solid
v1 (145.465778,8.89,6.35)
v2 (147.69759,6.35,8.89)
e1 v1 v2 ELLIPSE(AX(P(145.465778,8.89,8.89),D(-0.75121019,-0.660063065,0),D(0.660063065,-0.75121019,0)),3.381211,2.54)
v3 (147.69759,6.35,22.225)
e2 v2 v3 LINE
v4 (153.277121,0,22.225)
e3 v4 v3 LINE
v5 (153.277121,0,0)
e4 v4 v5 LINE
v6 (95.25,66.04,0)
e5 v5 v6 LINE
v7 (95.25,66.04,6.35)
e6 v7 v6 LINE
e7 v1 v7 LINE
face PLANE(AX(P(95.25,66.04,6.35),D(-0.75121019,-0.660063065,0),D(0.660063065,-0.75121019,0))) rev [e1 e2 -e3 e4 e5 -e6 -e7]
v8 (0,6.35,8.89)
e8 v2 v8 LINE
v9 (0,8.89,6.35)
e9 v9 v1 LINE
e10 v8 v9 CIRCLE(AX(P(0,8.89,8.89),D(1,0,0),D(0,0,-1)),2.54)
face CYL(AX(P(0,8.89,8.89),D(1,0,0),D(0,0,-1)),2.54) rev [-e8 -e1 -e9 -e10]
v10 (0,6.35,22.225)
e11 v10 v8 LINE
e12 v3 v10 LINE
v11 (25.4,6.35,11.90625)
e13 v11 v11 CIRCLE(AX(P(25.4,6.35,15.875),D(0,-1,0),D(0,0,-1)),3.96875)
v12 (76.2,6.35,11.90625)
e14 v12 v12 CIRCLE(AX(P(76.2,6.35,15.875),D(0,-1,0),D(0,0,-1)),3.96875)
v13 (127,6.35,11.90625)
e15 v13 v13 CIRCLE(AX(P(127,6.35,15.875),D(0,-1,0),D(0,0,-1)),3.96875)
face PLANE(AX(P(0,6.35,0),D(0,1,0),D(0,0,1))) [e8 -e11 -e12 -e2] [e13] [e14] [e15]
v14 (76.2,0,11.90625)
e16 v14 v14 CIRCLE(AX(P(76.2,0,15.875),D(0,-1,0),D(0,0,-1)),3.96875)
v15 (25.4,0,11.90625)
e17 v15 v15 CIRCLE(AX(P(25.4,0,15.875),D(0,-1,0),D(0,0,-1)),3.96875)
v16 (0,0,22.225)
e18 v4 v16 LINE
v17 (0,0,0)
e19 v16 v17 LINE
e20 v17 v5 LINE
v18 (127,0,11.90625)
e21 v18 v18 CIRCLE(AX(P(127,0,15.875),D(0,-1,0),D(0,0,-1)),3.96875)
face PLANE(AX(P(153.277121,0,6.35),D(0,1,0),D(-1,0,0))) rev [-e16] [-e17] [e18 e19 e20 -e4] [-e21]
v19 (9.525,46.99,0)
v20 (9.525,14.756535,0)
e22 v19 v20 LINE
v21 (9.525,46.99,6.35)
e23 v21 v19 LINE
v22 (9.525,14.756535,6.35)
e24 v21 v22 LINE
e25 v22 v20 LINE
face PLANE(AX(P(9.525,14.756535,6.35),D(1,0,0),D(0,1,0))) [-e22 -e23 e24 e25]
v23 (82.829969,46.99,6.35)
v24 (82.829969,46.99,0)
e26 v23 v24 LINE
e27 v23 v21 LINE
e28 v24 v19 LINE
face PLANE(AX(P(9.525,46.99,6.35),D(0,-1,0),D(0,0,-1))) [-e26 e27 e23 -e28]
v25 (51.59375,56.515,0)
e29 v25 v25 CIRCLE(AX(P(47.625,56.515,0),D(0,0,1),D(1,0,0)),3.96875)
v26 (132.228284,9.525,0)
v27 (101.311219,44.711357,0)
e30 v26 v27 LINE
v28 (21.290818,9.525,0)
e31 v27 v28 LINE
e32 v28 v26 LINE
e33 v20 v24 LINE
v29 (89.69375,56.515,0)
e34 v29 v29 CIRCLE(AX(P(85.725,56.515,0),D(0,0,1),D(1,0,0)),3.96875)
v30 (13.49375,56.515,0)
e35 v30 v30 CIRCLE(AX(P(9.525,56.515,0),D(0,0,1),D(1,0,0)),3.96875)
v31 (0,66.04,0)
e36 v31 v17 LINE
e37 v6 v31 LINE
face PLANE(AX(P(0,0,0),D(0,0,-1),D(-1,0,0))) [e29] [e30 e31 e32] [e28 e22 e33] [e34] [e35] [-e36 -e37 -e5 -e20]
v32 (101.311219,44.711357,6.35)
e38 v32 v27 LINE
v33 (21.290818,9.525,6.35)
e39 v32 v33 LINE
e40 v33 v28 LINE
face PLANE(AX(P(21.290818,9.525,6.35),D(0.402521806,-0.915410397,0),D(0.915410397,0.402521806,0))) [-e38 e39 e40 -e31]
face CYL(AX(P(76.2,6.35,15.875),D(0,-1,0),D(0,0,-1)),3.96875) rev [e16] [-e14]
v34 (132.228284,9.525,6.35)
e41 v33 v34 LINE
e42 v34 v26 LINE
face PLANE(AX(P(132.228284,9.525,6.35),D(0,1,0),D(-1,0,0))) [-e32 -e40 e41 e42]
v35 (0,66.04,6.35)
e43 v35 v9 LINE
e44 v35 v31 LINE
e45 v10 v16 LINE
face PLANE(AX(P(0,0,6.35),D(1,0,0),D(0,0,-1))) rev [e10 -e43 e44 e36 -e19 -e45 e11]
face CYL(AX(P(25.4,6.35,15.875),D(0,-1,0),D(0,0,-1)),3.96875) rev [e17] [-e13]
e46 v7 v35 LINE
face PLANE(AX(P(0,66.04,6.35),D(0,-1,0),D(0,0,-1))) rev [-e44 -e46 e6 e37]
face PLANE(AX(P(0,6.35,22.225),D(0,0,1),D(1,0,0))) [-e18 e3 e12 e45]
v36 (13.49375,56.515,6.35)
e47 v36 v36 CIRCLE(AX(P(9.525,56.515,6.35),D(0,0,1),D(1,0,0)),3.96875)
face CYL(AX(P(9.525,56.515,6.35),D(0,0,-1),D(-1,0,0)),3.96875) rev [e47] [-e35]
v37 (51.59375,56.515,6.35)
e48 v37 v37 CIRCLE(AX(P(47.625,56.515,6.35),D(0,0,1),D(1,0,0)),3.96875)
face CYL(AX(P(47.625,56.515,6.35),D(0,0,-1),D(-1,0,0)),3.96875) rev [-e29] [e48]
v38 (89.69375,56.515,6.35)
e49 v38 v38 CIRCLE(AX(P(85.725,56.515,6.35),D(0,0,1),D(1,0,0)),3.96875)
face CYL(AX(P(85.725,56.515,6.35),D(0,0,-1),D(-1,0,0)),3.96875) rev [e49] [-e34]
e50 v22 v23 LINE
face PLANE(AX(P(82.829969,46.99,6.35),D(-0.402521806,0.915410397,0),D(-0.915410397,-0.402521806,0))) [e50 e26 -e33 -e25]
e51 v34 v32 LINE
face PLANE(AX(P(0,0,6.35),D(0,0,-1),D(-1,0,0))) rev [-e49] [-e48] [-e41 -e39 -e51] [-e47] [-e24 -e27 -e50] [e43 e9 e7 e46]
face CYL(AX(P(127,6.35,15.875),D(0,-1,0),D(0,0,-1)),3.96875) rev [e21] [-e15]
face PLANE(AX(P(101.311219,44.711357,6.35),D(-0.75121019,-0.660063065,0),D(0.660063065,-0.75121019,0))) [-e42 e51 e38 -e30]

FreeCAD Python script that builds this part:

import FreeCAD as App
import Part
import Sketcher

V = App.Vector
Q = App.Units.Quantity


def edges_at(feature, points):
    """Names of the edges that pass closest to the given points."""
    edges = feature.Shape.Edges
    near = lambda p: min(range(len(edges)), key=lambda i: edges[i].distToShape(Part.Vertex(*p))[0])
    return sorted({f"Edge{near(p) + 1}" for p in points})

doc = App.newDocument("Part")
params = doc.addObject("Spreadsheet::Sheet", "Params")
for row, (alias, value) in enumerate([
    ("sketch1_diameter", "0.3125 in"),
    ("sketch1_height", "2.6 in"),
    ("sketch1_width", "3.75 in"),
    ("pad1_length", "0.25 in"),
    ("sketch2_diameter", "0.3125 in"),
    ("sketch2_height", "0.625 in"),
    ("pad2_length", "0.25 in"),
    ("fillet_radius", "0.1 in"),
], start=1):
    params.set(f"A{row}", alias)
    params.set(f"B{row}", "=" + value)
    params.setAlias(f"B{row}", alias)

body = doc.addObject("PartDesign::Body", "Body")

sketch1 = body.newObject("Sketcher::SketchObject", "Sketch")
sketch1.AttachmentSupport = (doc.getObject("XY_Plane"), [""])
sketch1.MapMode = "FlatFace"
sketch1.addGeometry([
    Part.LineSegment(V(0, 66, 0), V(0, 0, 0)),
    Part.LineSegment(V(0, 0, 0), V(153.3, 0, 0)),
    Part.LineSegment(V(153.3, 0, 0), V(95.2, 66, 0)),
    Part.LineSegment(V(95.2, 66, 0), V(0, 66, 0)),
    Part.LineSegment(V(21.3, 9.5, 0), V(101.3, 44.7, 0)),
    Part.LineSegment(V(101.3, 44.7, 0), V(132.2, 9.5, 0)),
    Part.LineSegment(V(132.2, 9.5, 0), V(21.3, 9.5, 0)),
    Part.LineSegment(V(9.5, 14.8, 0), V(9.5, 47, 0)),
    Part.LineSegment(V(9.5, 47, 0), V(82.8, 47, 0)),
    Part.LineSegment(V(82.8, 47, 0), V(9.5, 14.8, 0)),
    Part.Circle(V(85.7, 56.5, 0), V(0, 0, 1), 4),
    Part.Circle(V(47.6, 56.5, 0), V(0, 0, 1), 4),
    Part.Circle(V(9.5, 56.5, 0), V(0, 0, 1), 4),
], False)
sketch1.addConstraint([
    Sketcher.Constraint("Coincident", 0, 2, 1, 1),
    Sketcher.Constraint("Coincident", 1, 2, 2, 1),
    Sketcher.Constraint("Coincident", 2, 2, 3, 1),
    Sketcher.Constraint("Coincident", 3, 2, 0, 1),
    Sketcher.Constraint("Coincident", 4, 2, 5, 1),
    Sketcher.Constraint("Coincident", 5, 2, 6, 1),
    Sketcher.Constraint("Coincident", 6, 2, 4, 1),
    Sketcher.Constraint("Coincident", 7, 2, 8, 1),
    Sketcher.Constraint("Coincident", 8, 2, 9, 1),
    Sketcher.Constraint("Coincident", 9, 2, 7, 1),
    Sketcher.Constraint("Vertical", 0),
    Sketcher.Constraint("Horizontal", 1),
    Sketcher.Constraint("Horizontal", 3),
    Sketcher.Constraint("Horizontal", 6),
    Sketcher.Constraint("Vertical", 7),
    Sketcher.Constraint("Horizontal", 8),
    Sketcher.Constraint("Coincident", 0, 2, -1, 1),
    Sketcher.Constraint("Equal", 10, 11),
    Sketcher.Constraint("Equal", 11, 12),
    Sketcher.Constraint("Parallel", 2, 5),
    Sketcher.Constraint("Parallel", 4, 9),
    Sketcher.Constraint("Horizontal", 10, 3, 11, 3),
    Sketcher.Constraint("Horizontal", 11, 3, 12, 3),
    Sketcher.Constraint("Vertical", 12, 3, 7, 2),
    Sketcher.Constraint("Diameter", 10, Q("0.3125 in")),
    Sketcher.Constraint("DistanceY", 0, 2, 0, 1, Q("2.6 in")),
    Sketcher.Constraint("DistanceX", 12, 3, 10, 3, Q("3 in")),
    Sketcher.Constraint("DistanceX", 3, 2, 3, 1, Q("3.75 in")),
    Sketcher.Constraint("DistanceX", 11, 3, 10, 3, Q("1.5 in")),
    Sketcher.Constraint("DistanceY", -1, 1, 7, 2, Q("1.85 in")),
    Sketcher.Constraint("DistanceY", 5, 2, 10, 3, Q("1.85 in")),
    Sketcher.Constraint("DistanceX", -1, 1, 10, 3, Q("3.375 in")),
    Sketcher.Constraint("DistanceY", -1, 1, 10, 3, Q("2.225 in")),
    Sketcher.Constraint("DistanceX", 1, 1, 1, 2, Q("153.277121 mm")),
    Sketcher.Constraint("DistanceX", 8, 1, 8, 2, Q("73.304969 mm")),
    Sketcher.Constraint("DistanceX", 4, 2, 1, 2, Q("51.965902 mm")),
    Sketcher.Constraint("DistanceX", 6, 2, 6, 1, Q("110.937467 mm")),
    Sketcher.Constraint("DistanceY", 7, 1, 7, 2, Q("32.233465 mm")),
])
sketch1.setExpression("Constraints[24]", "Params.sketch1_diameter")
sketch1.setExpression("Constraints[25]", "Params.sketch1_height")
sketch1.setExpression("Constraints[27]", "Params.sketch1_width")
pad1 = body.newObject("PartDesign::Pad", "Pad")
pad1.Profile = sketch1
pad1.setExpression("Length", "Params.pad1_length")

sketch2 = body.newObject("Sketcher::SketchObject", "Sketch001")
sketch2.AttachmentSupport = (doc.getObject("XZ_Plane"), [""])
sketch2.MapMode = "FlatFace"
sketch2.addGeometry([
    Part.LineSegment(V(0, 22.2, 0), V(0, 6.3, 0)),
    Part.LineSegment(V(0, 6.3, 0), V(153.3, 6.3, 0)),
    Part.LineSegment(V(153.3, 6.3, 0), V(153.3, 22.2, 0)),
    Part.LineSegment(V(153.3, 22.2, 0), V(0, 22.2, 0)),
    Part.Circle(V(25.4, 15.9, 0), V(0, 0, 1), 4),
    Part.Circle(V(76.2, 15.9, 0), V(0, 0, 1), 4),
    Part.Circle(V(127, 15.9, 0), V(0, 0, 1), 4),
], False)
sketch2.addConstraint([
    Sketcher.Constraint("Coincident", 0, 2, 1, 1),
    Sketcher.Constraint("Coincident", 1, 2, 2, 1),
    Sketcher.Constraint("Coincident", 2, 2, 3, 1),
    Sketcher.Constraint("Coincident", 3, 2, 0, 1),
    Sketcher.Constraint("Vertical", 0),
    Sketcher.Constraint("Horizontal", 1),
    Sketcher.Constraint("Vertical", 2),
    Sketcher.Constraint("Horizontal", 3),
    Sketcher.Constraint("Equal", 4, 5),
    Sketcher.Constraint("Equal", 5, 6),
    Sketcher.Constraint("PointOnObject", 0, 2, -2),
    Sketcher.Constraint("Horizontal", 4, 3, 5, 3),
    Sketcher.Constraint("Horizontal", 5, 3, 6, 3),
    Sketcher.Constraint("Diameter", 4, Q("0.3125 in")),
    Sketcher.Constraint("DistanceX", -1, 1, 4, 3, Q("1 in")),
    Sketcher.Constraint("DistanceX", -1, 1, 5, 3, Q("3 in")),
    Sketcher.Constraint("DistanceX", -1, 1, 6, 3, Q("5 in")),
    Sketcher.Constraint("DistanceY", 0, 2, 0, 1, Q("0.625 in")),
    Sketcher.Constraint("DistanceY", -1, 1, 0, 2, Q("0.25 in")),
    Sketcher.Constraint("DistanceY", 6, 3, 2, 2, Q("0.25 in")),
    Sketcher.Constraint("DistanceX", 1, 1, 1, 2, Q("153.277121 mm")),
])
sketch2.setExpression("Constraints[13]", "Params.sketch2_diameter")
sketch2.setExpression("Constraints[17]", "Params.sketch2_height")
pad2 = body.newObject("PartDesign::Pad", "Pad001")
pad2.Profile = sketch2
pad2.setExpression("Length", "Params.pad2_length")
pad2.Reversed = True
doc.recompute()

fillet = body.newObject("PartDesign::Fillet", "Fillet")
fillet.Base = (pad2, edges_at(pad2, [(73.849, 6.35, 6.35)]))
fillet.setExpression("Radius", "Params.fillet_radius")

sketch3 = body.newObject("Sketcher::SketchObject", "Sketch002")
sketch3.AttachmentSupport = (doc.getObject("XY_Plane"), [""])
sketch3.MapMode = "FlatFace"
sketch3.addGeometry([
    Part.LineSegment(V(153, 0, 0), V(144, 11, 0)),
    Part.LineSegment(V(144, 11, 0), V(164, 14, 0)),
    Part.LineSegment(V(164, 14, 0), V(165, 4, 0)),
    Part.LineSegment(V(165, 4, 0), V(153, 0, 0)),
], False)
sketch3.addConstraint([
    Sketcher.Constraint("Coincident", 0, 2, 1, 1),
    Sketcher.Constraint("Coincident", 1, 2, 2, 1),
    Sketcher.Constraint("Coincident", 2, 2, 3, 1),
    Sketcher.Constraint("Coincident", 3, 2, 0, 1),
    Sketcher.Constraint("PointOnObject", 3, 2, -1),
    Sketcher.Constraint("DistanceY", 2, 2, 1, 2, Q("9.306898 mm")),
    Sketcher.Constraint("DistanceX", 3, 2, 1, 2, Q("10.284901 mm")),
    Sketcher.Constraint("Distance", 0, Q("14.24023 mm")),
    Sketcher.Constraint("Distance", 1, Q("19.890308 mm")),
    Sketcher.Constraint("Distance", 2, Q("9.46472 mm")),
    Sketcher.Constraint("Distance", 3, Q("12.734622 mm")),
    Sketcher.Constraint("DistanceX", -1, 1, 0, 2, Q("143.877671 mm")),
])
pocket1 = body.newObject("PartDesign::Pocket", "Pocket")
pocket1.Profile = sketch3
pocket1.Type = "ThroughAll"
pocket1.Reversed = True

doc.recompute()
